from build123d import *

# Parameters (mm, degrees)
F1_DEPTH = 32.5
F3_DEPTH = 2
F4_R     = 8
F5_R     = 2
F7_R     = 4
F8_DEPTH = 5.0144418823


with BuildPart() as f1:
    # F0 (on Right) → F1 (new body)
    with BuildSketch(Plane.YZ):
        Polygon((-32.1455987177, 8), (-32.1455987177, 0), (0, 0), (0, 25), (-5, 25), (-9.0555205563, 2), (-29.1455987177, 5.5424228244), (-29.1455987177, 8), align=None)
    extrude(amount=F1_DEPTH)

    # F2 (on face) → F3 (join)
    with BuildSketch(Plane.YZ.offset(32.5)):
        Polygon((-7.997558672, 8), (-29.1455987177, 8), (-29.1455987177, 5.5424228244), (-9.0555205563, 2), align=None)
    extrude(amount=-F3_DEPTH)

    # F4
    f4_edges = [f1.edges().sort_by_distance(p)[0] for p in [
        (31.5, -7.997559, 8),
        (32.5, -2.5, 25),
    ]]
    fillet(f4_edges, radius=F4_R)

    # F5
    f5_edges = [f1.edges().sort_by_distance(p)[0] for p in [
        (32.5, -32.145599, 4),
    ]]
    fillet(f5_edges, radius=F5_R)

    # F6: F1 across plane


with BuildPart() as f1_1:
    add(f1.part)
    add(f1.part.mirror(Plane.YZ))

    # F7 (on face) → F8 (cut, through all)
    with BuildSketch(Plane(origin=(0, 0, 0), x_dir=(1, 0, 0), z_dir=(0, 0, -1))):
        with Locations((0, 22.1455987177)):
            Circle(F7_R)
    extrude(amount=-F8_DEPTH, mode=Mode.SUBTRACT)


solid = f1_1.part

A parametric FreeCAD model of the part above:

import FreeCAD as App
import Part
import Sketcher
Q = App.Units.Quantity


def edges_at(feature, points):
    """Names of the edges that pass closest to the given points."""
    edges = feature.Shape.Edges
    near = lambda p: min(range(len(edges)), key=lambda i: edges[i].distToShape(Part.Vertex(*p))[0])
    return sorted({f"Edge{near(p) + 1}" for p in points})

doc = App.newDocument("Part")
body = doc.addObject("PartDesign::Body", "Body")

# Sketch on YZ plane
sketch1 = body.newObject("Sketcher::SketchObject", "Sketch")
sketch1.AttachmentSupport = (doc.getObject("YZ_Plane"), [""])
sketch1.MapMode = "FlatFace"
sketch1.addGeometry([
    Part.LineSegment(App.Vector(-32.1, 8, 0), App.Vector(-32.1, 0, 0)),  # 0
    Part.LineSegment(App.Vector(-32.1, 0, 0), App.Vector(0, 0, 0)),  # 1
    Part.LineSegment(App.Vector(0, 0, 0), App.Vector(0, 25, 0)),  # 2
    Part.LineSegment(App.Vector(0, 25, 0), App.Vector(-5, 25, 0)),  # 3
    Part.LineSegment(App.Vector(-5, 25, 0), App.Vector(-9.1, 2, 0)),  # 4
    Part.LineSegment(App.Vector(-9.1, 2, 0), App.Vector(-29.1, 5.5, 0)),  # 5
    Part.LineSegment(App.Vector(-29.1, 5.5, 0), App.Vector(-29.1, 8, 0)),  # 6
    Part.LineSegment(App.Vector(-29.1, 8, 0), App.Vector(-32.1, 8, 0)),  # 7
], False)
sketch1.addConstraint([
    Sketcher.Constraint("Coincident", 0, 2, 1, 1),
    Sketcher.Constraint("Coincident", 1, 2, 2, 1),
    Sketcher.Constraint("Coincident", 2, 2, 3, 1),
    Sketcher.Constraint("Coincident", 3, 2, 4, 1),
    Sketcher.Constraint("Coincident", 4, 2, 5, 1),
    Sketcher.Constraint("Coincident", 5, 2, 6, 1),
    Sketcher.Constraint("Coincident", 6, 2, 7, 1),
    Sketcher.Constraint("Coincident", 7, 2, 0, 1),
    Sketcher.Constraint("Vertical", 0),
    Sketcher.Constraint("Horizontal", 1),
    Sketcher.Constraint("Vertical", 2),
    Sketcher.Constraint("Horizontal", 3),
    Sketcher.Constraint("Vertical", 6),
    Sketcher.Constraint("Horizontal", 7),
    Sketcher.Constraint("Coincident", 1, 2, -1, 1),
    Sketcher.Constraint("Perpendicular", 4, 5),
    Sketcher.Constraint("DistanceX", 3, 2, 3, 1, Q("5 mm")),
    Sketcher.Constraint("DistanceX", 7, 2, 7, 1, Q("3 mm")),
    Sketcher.Constraint("DistanceY", 0, 2, 0, 1, Q("8 mm")),
    Sketcher.Constraint("DistanceY", 2, 1, 2, 2, Q("25 mm")),
    Sketcher.Constraint("Angle", 4, Q("-100 deg")),
    Sketcher.Constraint("DistanceY", -1, 1, 4, 2, Q("2 mm")),
    Sketcher.Constraint("Distance", 5, Q("20.4 mm")),
])
pad1 = body.newObject("PartDesign::Pad", "Pad")
pad1.Profile = sketch1
pad1.Length = 32.5

# Sketch on YZ plane
sketch2 = body.newObject("Sketcher::SketchObject", "Sketch001")
sketch2.AttachmentSupport = (doc.getObject("YZ_Plane"), [""])
sketch2.MapMode = "FlatFace"
sketch2.AttachmentOffset = App.Placement(App.Vector(0, 0, 32.5), App.Rotation())
sketch2.addGeometry([
    Part.LineSegment(App.Vector(-8, 8, 0), App.Vector(-29.1, 8, 0)),
    Part.LineSegment(App.Vector(-29.1, 8, 0), App.Vector(-29.1, 5.5, 0)),
    Part.LineSegment(App.Vector(-29.1, 5.5, 0), App.Vector(-9.1, 2, 0)),
    Part.LineSegment(App.Vector(-9.1, 2, 0), App.Vector(-8, 8, 0)),
], False)
sketch2.addConstraint([
    Sketcher.Constraint("Coincident", 0, 2, 1, 1),
    Sketcher.Constraint("Coincident", 1, 2, 2, 1),
    Sketcher.Constraint("Coincident", 2, 2, 3, 1),
    Sketcher.Constraint("Coincident", 3, 2, 0, 1),
    Sketcher.Constraint("Horizontal", 0),
    Sketcher.Constraint("Vertical", 1),
    Sketcher.Constraint("Perpendicular", 2, 3),
    Sketcher.Constraint("Angle", 2, Q("-10 deg")),
    Sketcher.Constraint("DistanceY", -1, 1, 0, 2, Q("8 mm")),
    Sketcher.Constraint("DistanceY", -1, 1, 2, 2, Q("2 mm")),
    Sketcher.Constraint("Distance", 2, Q("20.4 mm")),
    Sketcher.Constraint("DistanceX", 0, 2, -1, 1, Q("29.145599 mm")),
])
pad2 = body.newObject("PartDesign::Pad", "Pad001")
pad2.Profile = sketch2
pad2.Length = 2
pad2.Reversed = True
doc.recompute()

fillet = body.newObject("PartDesign::Fillet", "Fillet")
fillet.Base = (pad2, edges_at(pad2, [(31.5, -7.998, 8), (32.5, -2.5, 25)]))
fillet.Radius = 8
doc.recompute()

fillet2 = body.newObject("PartDesign::Fillet", "Fillet001")
fillet2.Base = (fillet, edges_at(fillet, [(32.5, -32.146, 4)]))
fillet2.Radius = 2
body2 = doc.addObject("PartDesign::Body", "Body001")
doc.recompute()

body2.BaseFeature = body
doc.recompute()

mirroring = doc.addObject("Part::Mirroring", "Mirroring")
mirroring.Source = body
mirroring.Base = App.Vector(0, 0, 0)
mirroring.Normal = App.Vector(1, 0, 0)
body3 = doc.addObject("PartDesign::Body", "Body002")
body3.BaseFeature = mirroring
boolean = body2.newObject("PartDesign::Boolean", "Boolean")
boolean.Type = "Fuse"
boolean.addObjects([body3])
doc.recompute()

# Sketch on XY plane
sketch3 = body2.newObject("Sketcher::SketchObject", "Sketch002")
sketch3.AttachmentSupport = (doc.getObject("XY_Plane001"), [""])
sketch3.MapMode = "FlatFace"
sketch3.addGeometry(Part.Circle(App.Vector(0, -22.1, 0), App.Vector(0, 0, 1), 4), False)
sketch3.addConstraint([
    Sketcher.Constraint("PointOnObject", 0, 3, -2),
    Sketcher.Constraint("Diameter", 0, Q("8 mm")),
    Sketcher.Constraint("DistanceY", 0, 3, -1, 1, Q("22.145599 mm")),
])
pocket1 = body2.newObject("PartDesign::Pocket", "Pocket")
pocket1.Profile = sketch3
pocket1.Type = "ThroughAll"
pocket1.Reversed = True
mirroring.Visibility = False

doc.recompute()
